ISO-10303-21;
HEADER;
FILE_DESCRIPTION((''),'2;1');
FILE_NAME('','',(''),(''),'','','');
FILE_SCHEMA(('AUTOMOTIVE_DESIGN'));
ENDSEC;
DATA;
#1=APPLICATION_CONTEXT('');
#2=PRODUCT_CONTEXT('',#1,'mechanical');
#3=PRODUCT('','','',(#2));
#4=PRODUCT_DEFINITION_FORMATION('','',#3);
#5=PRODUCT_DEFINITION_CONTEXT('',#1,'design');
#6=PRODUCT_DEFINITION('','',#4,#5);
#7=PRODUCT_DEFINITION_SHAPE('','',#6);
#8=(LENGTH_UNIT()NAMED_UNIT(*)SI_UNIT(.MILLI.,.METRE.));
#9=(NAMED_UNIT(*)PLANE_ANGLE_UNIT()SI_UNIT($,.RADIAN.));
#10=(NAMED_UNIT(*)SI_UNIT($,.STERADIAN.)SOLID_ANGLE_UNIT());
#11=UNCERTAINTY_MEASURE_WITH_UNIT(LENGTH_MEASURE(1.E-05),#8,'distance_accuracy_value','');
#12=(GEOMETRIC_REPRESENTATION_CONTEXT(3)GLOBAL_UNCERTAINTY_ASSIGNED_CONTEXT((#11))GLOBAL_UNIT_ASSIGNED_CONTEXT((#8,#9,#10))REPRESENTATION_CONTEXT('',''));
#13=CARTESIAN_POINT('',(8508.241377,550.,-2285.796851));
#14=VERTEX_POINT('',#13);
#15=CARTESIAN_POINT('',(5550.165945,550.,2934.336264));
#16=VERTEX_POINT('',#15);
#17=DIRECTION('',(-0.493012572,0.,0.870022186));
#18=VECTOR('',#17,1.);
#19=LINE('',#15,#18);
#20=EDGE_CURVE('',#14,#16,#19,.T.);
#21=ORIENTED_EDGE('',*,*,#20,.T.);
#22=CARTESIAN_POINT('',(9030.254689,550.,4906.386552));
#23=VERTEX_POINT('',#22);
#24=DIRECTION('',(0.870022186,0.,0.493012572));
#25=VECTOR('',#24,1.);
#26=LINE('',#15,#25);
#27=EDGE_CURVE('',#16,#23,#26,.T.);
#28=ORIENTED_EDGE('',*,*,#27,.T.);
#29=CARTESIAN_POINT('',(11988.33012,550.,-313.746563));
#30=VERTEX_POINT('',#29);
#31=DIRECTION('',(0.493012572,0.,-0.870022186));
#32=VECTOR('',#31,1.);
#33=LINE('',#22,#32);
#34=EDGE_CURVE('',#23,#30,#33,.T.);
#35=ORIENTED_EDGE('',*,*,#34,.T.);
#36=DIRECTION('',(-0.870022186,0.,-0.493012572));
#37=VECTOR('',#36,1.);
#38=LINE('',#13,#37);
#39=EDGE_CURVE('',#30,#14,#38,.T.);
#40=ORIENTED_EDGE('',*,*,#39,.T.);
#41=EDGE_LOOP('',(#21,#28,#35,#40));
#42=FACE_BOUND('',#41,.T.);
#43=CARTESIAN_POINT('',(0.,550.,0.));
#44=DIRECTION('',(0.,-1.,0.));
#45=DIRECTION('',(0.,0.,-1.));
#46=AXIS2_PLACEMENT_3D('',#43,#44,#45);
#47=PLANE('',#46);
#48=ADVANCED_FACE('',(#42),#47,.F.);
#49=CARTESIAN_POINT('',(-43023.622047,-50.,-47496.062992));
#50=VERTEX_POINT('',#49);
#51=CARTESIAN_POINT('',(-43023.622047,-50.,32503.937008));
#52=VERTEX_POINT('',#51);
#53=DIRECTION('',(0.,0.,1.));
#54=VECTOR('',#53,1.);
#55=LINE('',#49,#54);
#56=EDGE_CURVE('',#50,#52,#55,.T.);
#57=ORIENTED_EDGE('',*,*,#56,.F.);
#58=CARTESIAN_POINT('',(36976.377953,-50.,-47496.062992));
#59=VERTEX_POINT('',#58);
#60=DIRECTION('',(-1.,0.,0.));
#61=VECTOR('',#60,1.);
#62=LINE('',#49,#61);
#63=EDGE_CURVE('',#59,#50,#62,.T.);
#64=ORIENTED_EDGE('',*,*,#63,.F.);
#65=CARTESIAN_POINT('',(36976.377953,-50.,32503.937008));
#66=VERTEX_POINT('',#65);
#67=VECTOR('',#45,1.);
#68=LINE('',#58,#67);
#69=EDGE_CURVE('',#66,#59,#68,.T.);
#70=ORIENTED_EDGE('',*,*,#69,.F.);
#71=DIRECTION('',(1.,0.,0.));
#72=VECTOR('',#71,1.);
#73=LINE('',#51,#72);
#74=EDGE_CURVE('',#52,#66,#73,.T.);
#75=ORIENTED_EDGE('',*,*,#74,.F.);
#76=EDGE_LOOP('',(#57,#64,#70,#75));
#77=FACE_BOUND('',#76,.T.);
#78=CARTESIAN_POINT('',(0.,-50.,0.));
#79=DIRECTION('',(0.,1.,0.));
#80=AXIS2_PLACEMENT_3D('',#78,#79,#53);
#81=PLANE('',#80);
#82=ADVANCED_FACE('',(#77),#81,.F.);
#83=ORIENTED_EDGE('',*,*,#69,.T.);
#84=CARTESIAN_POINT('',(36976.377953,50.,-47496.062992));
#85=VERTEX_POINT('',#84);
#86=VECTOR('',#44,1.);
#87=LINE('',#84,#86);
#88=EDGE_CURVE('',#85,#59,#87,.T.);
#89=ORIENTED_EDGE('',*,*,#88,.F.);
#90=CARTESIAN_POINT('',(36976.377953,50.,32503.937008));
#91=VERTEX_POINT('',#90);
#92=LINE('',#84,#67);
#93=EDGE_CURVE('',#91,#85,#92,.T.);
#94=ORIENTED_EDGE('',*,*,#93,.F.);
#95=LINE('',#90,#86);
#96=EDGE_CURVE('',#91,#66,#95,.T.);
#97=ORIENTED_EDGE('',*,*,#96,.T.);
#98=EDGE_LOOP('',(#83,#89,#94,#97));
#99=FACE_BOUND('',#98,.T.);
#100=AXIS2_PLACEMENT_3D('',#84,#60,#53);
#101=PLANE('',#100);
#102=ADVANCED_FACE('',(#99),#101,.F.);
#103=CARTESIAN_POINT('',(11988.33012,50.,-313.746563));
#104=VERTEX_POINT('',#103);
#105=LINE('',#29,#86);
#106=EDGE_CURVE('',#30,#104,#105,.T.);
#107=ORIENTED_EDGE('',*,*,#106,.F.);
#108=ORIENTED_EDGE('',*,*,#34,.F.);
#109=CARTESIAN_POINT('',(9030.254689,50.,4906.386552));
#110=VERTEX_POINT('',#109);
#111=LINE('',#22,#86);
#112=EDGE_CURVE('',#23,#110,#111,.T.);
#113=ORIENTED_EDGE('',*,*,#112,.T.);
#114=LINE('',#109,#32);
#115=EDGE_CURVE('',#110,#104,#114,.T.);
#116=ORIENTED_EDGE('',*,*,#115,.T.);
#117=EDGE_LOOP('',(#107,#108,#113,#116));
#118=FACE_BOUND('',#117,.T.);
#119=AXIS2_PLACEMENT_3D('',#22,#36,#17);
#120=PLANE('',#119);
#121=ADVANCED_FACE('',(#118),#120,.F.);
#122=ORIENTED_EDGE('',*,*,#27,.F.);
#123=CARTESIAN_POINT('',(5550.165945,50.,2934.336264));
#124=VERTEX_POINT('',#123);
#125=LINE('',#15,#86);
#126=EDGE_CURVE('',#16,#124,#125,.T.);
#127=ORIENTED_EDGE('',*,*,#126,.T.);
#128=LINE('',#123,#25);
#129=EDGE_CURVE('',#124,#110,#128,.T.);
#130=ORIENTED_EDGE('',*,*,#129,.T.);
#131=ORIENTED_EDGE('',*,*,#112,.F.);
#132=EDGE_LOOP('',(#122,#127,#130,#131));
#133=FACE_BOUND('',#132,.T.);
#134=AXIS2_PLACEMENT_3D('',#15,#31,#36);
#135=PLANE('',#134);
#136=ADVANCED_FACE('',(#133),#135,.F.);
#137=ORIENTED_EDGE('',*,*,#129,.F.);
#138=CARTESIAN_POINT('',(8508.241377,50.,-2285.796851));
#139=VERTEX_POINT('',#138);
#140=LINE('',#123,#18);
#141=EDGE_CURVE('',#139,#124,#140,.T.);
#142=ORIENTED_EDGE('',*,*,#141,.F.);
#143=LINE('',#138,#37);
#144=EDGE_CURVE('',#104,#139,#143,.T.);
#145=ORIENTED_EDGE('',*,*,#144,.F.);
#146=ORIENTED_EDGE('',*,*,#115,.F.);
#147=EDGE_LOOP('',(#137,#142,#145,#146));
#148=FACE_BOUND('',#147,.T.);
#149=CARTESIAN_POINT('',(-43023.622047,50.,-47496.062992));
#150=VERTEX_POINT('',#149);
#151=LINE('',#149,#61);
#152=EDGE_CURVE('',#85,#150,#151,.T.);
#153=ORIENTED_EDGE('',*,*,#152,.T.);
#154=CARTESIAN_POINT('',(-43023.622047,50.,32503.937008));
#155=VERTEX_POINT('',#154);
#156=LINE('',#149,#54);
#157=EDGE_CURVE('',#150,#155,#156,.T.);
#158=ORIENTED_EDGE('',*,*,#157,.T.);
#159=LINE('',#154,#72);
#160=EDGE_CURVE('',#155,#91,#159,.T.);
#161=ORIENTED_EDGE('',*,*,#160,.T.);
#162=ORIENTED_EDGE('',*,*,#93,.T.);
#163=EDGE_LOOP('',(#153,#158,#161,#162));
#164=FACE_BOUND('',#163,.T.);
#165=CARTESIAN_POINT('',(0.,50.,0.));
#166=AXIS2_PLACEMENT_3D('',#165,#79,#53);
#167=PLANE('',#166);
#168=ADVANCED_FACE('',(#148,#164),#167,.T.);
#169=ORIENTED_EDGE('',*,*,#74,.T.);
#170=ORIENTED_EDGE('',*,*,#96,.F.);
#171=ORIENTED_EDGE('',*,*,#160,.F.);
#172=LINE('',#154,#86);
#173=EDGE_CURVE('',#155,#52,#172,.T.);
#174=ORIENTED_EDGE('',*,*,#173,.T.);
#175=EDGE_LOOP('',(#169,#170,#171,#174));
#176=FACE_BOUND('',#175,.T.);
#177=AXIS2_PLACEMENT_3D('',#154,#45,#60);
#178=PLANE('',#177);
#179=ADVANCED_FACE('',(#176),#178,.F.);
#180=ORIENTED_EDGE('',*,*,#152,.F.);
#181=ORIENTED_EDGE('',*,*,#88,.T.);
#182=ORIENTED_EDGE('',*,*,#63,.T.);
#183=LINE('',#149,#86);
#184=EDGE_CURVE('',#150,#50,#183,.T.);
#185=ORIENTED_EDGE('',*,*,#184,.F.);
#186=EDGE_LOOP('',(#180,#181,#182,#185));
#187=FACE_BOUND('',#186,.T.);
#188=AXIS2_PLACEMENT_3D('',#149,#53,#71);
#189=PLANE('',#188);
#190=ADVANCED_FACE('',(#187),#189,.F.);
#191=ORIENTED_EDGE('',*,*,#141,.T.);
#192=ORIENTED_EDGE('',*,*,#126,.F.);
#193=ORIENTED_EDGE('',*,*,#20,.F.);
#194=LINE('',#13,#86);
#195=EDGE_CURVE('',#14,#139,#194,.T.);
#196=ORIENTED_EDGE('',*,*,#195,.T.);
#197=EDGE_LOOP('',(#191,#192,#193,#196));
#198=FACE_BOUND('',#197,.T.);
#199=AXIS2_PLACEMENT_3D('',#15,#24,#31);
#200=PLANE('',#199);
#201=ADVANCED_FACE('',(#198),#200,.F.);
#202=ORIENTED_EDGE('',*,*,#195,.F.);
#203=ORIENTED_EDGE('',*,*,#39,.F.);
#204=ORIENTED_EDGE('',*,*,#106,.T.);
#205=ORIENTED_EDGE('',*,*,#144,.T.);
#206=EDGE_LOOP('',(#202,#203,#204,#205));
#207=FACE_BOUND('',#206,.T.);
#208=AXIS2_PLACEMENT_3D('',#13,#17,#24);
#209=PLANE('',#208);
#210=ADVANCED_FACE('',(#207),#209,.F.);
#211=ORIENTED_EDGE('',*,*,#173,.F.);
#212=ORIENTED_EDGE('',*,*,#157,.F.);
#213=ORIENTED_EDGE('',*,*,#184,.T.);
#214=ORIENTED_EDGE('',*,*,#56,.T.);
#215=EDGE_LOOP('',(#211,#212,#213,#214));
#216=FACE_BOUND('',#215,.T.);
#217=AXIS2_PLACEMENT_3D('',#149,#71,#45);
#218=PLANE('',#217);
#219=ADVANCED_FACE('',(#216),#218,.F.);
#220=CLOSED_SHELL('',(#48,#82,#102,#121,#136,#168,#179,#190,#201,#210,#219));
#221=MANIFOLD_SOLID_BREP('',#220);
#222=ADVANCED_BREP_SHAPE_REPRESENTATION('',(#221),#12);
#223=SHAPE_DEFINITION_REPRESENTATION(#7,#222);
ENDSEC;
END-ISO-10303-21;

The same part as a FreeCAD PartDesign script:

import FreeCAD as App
import Part
import Sketcher

V = App.Vector
Q = App.Units.Quantity


def add_polygon(sketch, points):
    """Adds a closed chain of lines whose ends are joined by coincident constraints."""
    first, n = sketch.GeometryCount, len(points)
    for a, b in zip(points, points[1:] + points[:1]):
        sketch.addGeometry(Part.LineSegment(App.Vector(*a, 0), App.Vector(*b, 0)), False)
    for i in range(n):
        sketch.addConstraint(Sketcher.Constraint("Coincident", first + i, 2, first + (i + 1) % n, 1))

doc = App.newDocument("Part")
params = doc.addObject("Spreadsheet::Sheet", "Params")
for row, (alias, value) in enumerate([
    ("sketch1_width", "80000 mm"),
    ("pad1_length", "100 mm"),
    ("sketch2_length", "4000 mm"),
    ("sketch2_length2", "6000 mm"),
    ("pad2_length", "500 mm"),
], start=1):
    params.set(f"A{row}", alias)
    params.set(f"B{row}", "=" + value)
    params.setAlias(f"B{row}", alias)

body = doc.addObject("PartDesign::Body", "Body")

sketch1 = body.newObject("Sketcher::SketchObject", "Sketch")
sketch1.AttachmentSupport = (doc.getObject("XZ_Plane"), [""])
sketch1.MapMode = "FlatFace"
add_polygon(sketch1, [(-43024, -47496), (-43024, 32504), (36976, 32504), (36976, -47496)])
sketch1.addConstraint([
    Sketcher.Constraint("Vertical", 0),
    Sketcher.Constraint("Horizontal", 1),
    Sketcher.Constraint("Vertical", 2),
    Sketcher.Constraint("Horizontal", 3),
    Sketcher.Constraint("Equal", 3, 0),
    Sketcher.Constraint("DistanceX", 1, 1, 1, 2, Q("80000 mm")),
    Sketcher.Constraint("DistanceX", 0, 2, -1, 1, Q("43023.622047 mm")),
    Sketcher.Constraint("DistanceY", -1, 1, 0, 2, Q("32503.937008 mm")),
])
sketch1.setExpression("Constraints[9]", "Params.sketch1_width")
pad1 = body.newObject("PartDesign::Pad", "Pad")
pad1.Profile = sketch1
pad1.setExpression("Length", "Params.pad1_length")
pad1.Midplane = True

sketch2 = body.newObject("Sketcher::SketchObject", "Sketch001")
sketch2.AttachmentSupport = (doc.getObject("XZ_Plane"), [""])
sketch2.MapMode = "FlatFace"
sketch2.AttachmentOffset = App.Placement(V(0, 0, -50), App.Rotation())
add_polygon(sketch2, [(5550, 2934), (9030, 4906), (11988, -314), (8508, -2286)])
sketch2.addConstraint([
    Sketcher.Constraint("Perpendicular", 0, 1),
    Sketcher.Constraint("Perpendicular", 1, 2),
    Sketcher.Constraint("Perpendicular", 2, 3),
    Sketcher.Constraint("Distance", 0, Q("4000 mm")),
    Sketcher.Constraint("Distance", 1, Q("6000 mm")),
    Sketcher.Constraint("DistanceX", -1, 1, 0, 2, Q("9030.254689 mm")),
    Sketcher.Constraint("DistanceX", -1, 1, 1, 2, Q("11988.33012 mm")),
    Sketcher.Constraint("DistanceY", 2, 2, -1, 1, Q("2285.796851 mm")),
])
sketch2.setExpression("Constraints[7]", "Params.sketch2_length")
sketch2.setExpression("Constraints[8]", "Params.sketch2_length2")
pad2 = body.newObject("PartDesign::Pad", "Pad001")
pad2.Profile = sketch2
pad2.setExpression("Length", "Params.pad2_length")
pad2.Reversed = True

doc.recompute()
